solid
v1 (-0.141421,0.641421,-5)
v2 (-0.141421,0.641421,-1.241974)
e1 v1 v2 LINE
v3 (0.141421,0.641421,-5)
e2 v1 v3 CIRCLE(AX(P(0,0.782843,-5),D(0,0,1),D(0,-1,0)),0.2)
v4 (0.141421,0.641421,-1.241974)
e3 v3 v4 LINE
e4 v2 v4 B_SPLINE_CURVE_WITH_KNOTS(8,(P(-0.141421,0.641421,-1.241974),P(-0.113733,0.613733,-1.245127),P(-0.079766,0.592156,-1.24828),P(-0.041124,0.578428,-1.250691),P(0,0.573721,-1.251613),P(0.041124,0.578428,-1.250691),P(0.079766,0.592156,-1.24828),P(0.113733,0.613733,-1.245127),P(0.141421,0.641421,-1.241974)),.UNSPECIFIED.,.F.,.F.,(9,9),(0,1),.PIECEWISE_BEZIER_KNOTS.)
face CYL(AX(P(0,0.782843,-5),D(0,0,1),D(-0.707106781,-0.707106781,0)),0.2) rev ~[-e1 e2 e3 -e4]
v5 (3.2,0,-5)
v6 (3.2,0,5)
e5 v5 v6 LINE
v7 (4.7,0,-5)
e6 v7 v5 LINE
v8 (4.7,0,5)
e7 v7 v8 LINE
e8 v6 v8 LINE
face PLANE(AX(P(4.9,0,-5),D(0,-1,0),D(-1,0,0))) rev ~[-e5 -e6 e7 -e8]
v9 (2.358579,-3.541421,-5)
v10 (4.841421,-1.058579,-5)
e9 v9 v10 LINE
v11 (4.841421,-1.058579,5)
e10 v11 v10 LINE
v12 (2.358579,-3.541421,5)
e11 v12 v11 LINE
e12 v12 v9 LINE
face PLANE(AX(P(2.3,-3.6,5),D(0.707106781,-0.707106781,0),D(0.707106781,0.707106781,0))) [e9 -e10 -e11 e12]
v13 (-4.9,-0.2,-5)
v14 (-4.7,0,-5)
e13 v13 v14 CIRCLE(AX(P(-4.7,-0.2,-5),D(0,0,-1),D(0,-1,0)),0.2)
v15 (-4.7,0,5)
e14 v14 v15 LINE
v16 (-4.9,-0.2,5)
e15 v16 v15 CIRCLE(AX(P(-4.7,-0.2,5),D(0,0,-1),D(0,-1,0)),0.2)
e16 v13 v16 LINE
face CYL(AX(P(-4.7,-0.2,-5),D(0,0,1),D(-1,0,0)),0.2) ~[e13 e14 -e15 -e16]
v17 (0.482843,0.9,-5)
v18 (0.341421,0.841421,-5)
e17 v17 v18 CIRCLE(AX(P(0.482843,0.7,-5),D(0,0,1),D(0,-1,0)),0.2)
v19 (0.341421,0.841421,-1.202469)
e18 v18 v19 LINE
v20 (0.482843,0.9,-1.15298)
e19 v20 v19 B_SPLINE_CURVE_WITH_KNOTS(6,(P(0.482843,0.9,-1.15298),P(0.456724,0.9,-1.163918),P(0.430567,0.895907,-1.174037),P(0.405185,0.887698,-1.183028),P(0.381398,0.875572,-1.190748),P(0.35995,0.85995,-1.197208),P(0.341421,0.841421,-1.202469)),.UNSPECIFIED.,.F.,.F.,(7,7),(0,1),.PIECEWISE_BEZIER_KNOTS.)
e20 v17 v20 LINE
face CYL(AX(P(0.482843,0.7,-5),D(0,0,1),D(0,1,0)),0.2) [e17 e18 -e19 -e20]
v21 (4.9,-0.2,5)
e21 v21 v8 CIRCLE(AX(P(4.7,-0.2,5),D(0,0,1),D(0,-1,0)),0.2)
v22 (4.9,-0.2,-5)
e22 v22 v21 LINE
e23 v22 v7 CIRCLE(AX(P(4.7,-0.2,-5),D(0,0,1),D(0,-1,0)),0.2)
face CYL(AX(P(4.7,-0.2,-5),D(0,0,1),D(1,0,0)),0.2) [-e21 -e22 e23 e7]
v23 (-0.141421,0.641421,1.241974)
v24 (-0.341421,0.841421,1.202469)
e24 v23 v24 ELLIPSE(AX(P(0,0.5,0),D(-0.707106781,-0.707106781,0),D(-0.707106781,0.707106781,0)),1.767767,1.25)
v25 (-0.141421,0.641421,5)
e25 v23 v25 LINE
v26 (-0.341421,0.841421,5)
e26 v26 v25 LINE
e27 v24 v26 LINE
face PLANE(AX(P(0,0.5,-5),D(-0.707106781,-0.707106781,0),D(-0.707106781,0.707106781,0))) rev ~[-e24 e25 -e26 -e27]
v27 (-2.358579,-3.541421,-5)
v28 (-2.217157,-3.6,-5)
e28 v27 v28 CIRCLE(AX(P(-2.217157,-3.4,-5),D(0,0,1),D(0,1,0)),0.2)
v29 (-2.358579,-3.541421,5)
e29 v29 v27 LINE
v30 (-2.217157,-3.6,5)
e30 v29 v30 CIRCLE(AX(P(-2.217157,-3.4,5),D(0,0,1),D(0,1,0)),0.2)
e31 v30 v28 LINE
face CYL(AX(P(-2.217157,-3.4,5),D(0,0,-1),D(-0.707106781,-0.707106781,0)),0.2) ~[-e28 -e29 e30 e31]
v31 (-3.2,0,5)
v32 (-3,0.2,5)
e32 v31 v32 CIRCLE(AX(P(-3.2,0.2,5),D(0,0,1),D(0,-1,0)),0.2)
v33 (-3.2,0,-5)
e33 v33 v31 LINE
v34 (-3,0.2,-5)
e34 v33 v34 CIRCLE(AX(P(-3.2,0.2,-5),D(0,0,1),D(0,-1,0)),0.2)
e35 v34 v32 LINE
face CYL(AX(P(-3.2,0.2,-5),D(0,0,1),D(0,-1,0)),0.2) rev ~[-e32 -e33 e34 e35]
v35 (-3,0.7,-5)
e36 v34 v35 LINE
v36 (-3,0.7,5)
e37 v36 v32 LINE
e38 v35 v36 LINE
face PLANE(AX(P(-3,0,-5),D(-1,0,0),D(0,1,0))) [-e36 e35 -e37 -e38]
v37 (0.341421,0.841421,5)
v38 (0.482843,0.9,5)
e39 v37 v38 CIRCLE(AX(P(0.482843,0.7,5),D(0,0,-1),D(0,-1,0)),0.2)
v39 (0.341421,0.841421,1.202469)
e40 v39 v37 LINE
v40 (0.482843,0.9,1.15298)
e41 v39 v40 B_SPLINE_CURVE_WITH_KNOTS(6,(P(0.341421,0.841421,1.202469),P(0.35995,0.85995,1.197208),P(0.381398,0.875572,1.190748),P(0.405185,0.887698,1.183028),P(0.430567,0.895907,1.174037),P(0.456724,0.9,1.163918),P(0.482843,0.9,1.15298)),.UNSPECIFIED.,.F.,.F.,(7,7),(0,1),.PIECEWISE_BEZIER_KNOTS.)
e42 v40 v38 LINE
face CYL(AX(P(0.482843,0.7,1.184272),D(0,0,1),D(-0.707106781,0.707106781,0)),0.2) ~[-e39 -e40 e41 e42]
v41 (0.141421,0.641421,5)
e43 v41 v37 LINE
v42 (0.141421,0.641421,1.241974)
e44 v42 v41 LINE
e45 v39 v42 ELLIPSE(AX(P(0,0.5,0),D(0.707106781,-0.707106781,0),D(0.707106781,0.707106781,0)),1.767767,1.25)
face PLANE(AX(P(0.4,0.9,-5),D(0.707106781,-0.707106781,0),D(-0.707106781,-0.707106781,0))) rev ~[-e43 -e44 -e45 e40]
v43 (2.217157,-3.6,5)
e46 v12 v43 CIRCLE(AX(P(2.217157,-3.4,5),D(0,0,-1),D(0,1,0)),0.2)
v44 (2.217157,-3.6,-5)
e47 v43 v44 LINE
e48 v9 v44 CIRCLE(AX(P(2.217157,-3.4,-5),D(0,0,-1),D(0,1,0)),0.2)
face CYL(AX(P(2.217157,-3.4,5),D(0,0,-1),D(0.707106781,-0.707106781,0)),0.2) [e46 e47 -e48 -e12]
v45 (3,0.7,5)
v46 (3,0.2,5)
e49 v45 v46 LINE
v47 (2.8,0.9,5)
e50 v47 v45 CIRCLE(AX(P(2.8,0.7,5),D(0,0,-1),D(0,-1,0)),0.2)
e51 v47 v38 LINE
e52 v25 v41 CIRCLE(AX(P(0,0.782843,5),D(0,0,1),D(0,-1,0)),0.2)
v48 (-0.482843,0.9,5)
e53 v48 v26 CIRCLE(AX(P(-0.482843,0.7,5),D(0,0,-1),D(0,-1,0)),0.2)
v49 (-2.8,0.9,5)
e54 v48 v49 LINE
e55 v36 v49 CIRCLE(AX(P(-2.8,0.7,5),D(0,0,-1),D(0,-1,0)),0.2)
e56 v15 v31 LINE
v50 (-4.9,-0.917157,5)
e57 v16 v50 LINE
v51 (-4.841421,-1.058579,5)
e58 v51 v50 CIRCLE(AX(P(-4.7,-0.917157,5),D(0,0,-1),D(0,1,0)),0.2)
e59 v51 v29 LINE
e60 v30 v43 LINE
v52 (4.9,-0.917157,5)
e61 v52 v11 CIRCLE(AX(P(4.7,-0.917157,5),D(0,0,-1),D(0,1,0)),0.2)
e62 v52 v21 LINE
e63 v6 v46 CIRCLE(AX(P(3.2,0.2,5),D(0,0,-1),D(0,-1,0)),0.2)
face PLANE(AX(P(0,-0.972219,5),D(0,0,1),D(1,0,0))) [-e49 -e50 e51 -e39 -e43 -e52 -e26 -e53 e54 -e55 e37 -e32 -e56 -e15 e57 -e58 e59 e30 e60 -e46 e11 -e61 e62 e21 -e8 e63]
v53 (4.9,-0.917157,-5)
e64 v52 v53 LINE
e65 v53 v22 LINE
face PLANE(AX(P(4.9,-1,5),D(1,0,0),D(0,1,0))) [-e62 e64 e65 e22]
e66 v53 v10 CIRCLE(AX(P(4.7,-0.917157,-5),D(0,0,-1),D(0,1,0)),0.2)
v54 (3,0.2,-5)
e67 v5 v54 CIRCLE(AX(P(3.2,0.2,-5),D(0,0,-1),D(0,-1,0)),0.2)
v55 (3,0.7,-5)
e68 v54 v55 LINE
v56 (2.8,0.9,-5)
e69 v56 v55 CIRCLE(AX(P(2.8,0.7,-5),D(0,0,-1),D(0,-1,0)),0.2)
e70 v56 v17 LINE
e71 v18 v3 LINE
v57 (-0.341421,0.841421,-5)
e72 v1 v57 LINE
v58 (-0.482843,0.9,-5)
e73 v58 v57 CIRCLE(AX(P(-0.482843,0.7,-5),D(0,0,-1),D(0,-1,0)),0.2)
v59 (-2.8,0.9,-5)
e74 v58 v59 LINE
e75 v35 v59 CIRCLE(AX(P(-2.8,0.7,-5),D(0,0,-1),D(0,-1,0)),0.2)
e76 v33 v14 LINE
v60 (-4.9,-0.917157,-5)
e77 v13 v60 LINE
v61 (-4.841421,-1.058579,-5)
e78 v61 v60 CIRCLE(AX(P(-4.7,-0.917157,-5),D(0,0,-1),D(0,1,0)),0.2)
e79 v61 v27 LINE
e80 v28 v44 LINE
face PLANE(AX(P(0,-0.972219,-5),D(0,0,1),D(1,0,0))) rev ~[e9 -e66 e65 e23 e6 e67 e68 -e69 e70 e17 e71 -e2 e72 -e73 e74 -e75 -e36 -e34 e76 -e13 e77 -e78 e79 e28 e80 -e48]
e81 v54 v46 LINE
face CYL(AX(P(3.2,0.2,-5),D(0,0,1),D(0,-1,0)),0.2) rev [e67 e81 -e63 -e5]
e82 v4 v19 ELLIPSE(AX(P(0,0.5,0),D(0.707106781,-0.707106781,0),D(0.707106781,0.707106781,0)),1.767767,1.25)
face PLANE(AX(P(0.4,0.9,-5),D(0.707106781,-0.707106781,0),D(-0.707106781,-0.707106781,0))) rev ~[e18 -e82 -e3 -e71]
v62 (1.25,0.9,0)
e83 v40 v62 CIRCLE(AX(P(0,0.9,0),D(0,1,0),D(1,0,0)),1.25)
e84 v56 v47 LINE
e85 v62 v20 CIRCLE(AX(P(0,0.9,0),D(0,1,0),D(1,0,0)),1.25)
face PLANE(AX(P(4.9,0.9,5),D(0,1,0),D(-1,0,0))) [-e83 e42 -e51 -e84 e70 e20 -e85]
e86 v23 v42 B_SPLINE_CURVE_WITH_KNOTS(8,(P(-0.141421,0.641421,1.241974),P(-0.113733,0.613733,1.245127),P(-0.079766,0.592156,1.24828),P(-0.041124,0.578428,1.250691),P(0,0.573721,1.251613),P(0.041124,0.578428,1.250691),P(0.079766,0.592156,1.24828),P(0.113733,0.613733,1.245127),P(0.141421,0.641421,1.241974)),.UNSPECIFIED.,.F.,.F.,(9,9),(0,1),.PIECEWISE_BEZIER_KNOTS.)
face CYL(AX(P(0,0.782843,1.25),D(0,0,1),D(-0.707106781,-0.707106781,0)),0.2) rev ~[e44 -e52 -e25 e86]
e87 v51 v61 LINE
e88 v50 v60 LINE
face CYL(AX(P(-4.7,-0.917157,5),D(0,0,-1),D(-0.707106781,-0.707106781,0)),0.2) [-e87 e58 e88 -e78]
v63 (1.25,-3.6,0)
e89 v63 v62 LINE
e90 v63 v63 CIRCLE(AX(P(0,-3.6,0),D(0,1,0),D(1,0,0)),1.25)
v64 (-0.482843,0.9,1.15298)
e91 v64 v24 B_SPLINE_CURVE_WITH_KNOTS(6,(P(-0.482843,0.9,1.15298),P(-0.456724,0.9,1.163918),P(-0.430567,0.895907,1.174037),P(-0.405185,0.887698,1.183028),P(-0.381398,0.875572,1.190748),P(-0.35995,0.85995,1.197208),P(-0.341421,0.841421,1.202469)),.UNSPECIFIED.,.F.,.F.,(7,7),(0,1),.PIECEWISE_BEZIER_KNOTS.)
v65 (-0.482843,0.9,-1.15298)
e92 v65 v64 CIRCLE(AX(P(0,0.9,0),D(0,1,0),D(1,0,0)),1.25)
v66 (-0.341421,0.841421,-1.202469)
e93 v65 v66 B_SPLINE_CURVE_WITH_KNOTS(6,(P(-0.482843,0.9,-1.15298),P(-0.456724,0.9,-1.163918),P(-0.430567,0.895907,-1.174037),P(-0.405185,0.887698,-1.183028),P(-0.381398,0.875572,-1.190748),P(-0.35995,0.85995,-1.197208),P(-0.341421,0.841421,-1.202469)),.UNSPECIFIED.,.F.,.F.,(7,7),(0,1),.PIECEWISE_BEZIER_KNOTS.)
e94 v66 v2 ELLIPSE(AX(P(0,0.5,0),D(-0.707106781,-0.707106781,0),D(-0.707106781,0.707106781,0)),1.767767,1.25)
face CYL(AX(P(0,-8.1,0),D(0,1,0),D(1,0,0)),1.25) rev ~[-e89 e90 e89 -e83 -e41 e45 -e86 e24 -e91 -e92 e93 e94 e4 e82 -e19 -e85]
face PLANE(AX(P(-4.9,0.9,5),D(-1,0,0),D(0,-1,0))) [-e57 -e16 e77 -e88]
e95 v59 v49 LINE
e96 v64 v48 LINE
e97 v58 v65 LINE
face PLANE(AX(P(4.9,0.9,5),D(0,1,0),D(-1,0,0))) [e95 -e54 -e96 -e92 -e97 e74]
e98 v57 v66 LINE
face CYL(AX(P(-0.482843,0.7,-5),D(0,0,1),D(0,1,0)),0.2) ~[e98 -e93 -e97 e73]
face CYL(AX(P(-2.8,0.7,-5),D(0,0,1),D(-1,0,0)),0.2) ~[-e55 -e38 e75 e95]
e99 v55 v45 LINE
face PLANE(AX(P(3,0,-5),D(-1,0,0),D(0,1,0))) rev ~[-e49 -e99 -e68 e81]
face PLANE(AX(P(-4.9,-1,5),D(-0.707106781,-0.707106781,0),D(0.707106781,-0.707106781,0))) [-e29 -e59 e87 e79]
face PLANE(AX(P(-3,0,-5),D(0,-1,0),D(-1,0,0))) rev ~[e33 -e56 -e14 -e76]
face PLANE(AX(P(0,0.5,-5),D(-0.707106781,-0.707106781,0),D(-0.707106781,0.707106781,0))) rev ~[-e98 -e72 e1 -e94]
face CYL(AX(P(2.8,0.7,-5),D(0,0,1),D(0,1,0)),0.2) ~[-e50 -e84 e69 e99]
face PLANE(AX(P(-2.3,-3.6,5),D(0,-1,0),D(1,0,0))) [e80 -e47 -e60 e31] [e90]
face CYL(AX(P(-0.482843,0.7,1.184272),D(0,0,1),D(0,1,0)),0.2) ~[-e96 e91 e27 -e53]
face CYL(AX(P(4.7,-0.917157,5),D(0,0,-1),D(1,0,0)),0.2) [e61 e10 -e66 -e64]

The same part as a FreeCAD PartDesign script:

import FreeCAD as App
import Part
import Sketcher

V = App.Vector
Q = App.Units.Quantity


def edges_at(feature, points):
    """Names of the edges that pass closest to the given points."""
    edges = feature.Shape.Edges
    near = lambda p: min(range(len(edges)), key=lambda i: edges[i].distToShape(Part.Vertex(*p))[0])
    return sorted({f"Edge{near(p) + 1}" for p in points})


def add_polygon(sketch, points):
    """Adds a closed chain of lines whose ends are joined by coincident constraints."""
    first, n = sketch.GeometryCount, len(points)
    for a, b in zip(points, points[1:] + points[:1]):
        sketch.addGeometry(Part.LineSegment(App.Vector(*a, 0), App.Vector(*b, 0)), False)
    for i in range(n):
        sketch.addConstraint(Sketcher.Constraint("Coincident", first + i, 2, first + (i + 1) % n, 1))

doc = App.newDocument("Part")
body = doc.addObject("PartDesign::Body", "Body")

# Sketch on XY plane
sketch1 = doc.addObject("Sketcher::SketchObject", "Sketch")
body.addObject(sketch1)
sketch1.AttachmentSupport = (doc.XY_Plane, [""])
sketch1.MapMode = "FlatFace"
sketch1.AttachmentOffset = App.Placement(V(0, 0, 5), App.Rotation())
add_polygon(sketch1, [(4.9, -1), (4.9, 0.9), (-4.9, 0.9), (-4.9, -1), (-2.3, -3.6), (2.3, -3.6)])  # lines 0-5
sketch1.addConstraint([
    Sketcher.Constraint("Vertical", 0),
    Sketcher.Constraint("Horizontal", 1),
    Sketcher.Constraint("Vertical", 2),
    Sketcher.Constraint("Horizontal", 4),
    Sketcher.Constraint("Symmetric", 2, 2, 5, 2, -2),
    Sketcher.Constraint("Perpendicular", 3, 5),
    Sketcher.Constraint("Equal", 3, 5),
    Sketcher.Constraint("DistanceX", 1, 2, 1, 1, Q("9.8 mm")),
    Sketcher.Constraint("DistanceX", 4, 1, 4, 2, Q("4.6 mm")),
    Sketcher.Constraint("DistanceY", 0, 1, 0, 2, Q("1.9 mm")),
    Sketcher.Constraint("DistanceY", 2, 2, -1, 1, Q("1 mm")),
])
pad1 = doc.addObject("PartDesign::Pad", "Pad")
body.addObject(pad1)
pad1.Profile = sketch1
pad1.Length = 10
pad1.Reversed = True

# Sketch on XY plane
sketch2 = doc.addObject("Sketcher::SketchObject", "Sketch001")
body.addObject(sketch2)
sketch2.AttachmentSupport = (doc.XY_Plane, [""])
sketch2.MapMode = "FlatFace"
sketch2.AttachmentOffset = App.Placement(V(0, 0, -5), App.Rotation())
add_polygon(sketch2, [(-3, 0.9), (-3, 0), (-4.9, 0), (-4.9, 0.9)])  # lines 0-3
sketch2.addConstraint([
    Sketcher.Constraint("Vertical", 0),
    Sketcher.Constraint("Horizontal", 1),
    Sketcher.Constraint("Vertical", 2),
    Sketcher.Constraint("Horizontal", 3),
    Sketcher.Constraint("PointOnObject", 0, 2, -1),
    Sketcher.Constraint("DistanceX", 1, 2, 1, 1, Q("1.9 mm")),
    Sketcher.Constraint("DistanceY", 0, 2, 0, 1, Q("0.9 mm")),
    Sketcher.Constraint("DistanceX", 0, 2, -1, 1, Q("3 mm")),
])
pocket1 = doc.addObject("PartDesign::Pocket", "Pocket")
body.addObject(pocket1)
pocket1.Profile = sketch2
pocket1.Type = "ThroughAll"
pocket1.Reversed = True

# Sketch on XY plane
sketch3 = doc.addObject("Sketcher::SketchObject", "Sketch002")
body.addObject(sketch3)
sketch3.AttachmentSupport = (doc.XY_Plane, [""])
sketch3.MapMode = "FlatFace"
sketch3.AttachmentOffset = App.Placement(V(0, 0, -5), App.Rotation())
add_polygon(sketch3, [(4.9, 0.9), (4.9, 0), (3, 0), (3, 0.9)])  # lines 0-3
sketch3.addConstraint([
    Sketcher.Constraint("Vertical", 0),
    Sketcher.Constraint("Horizontal", 1),
    Sketcher.Constraint("Vertical", 2),
    Sketcher.Constraint("Horizontal", 3),
    Sketcher.Constraint("PointOnObject", 0, 2, -1),
    Sketcher.Constraint("DistanceX", 1, 2, 1, 1, Q("1.9 mm")),
    Sketcher.Constraint("DistanceY", 0, 2, 0, 1, Q("0.9 mm")),
    Sketcher.Constraint("DistanceX", -1, 1, 1, 2, Q("3 mm")),
])
pocket2 = doc.addObject("PartDesign::Pocket", "Pocket001")
body.addObject(pocket2)
pocket2.Profile = sketch3
pocket2.Type = "ThroughAll"
pocket2.Reversed = True

# Sketch on XY plane
sketch4 = doc.addObject("Sketcher::SketchObject", "Sketch003")
body.addObject(sketch4)
sketch4.AttachmentSupport = (doc.XY_Plane, [""])
sketch4.MapMode = "FlatFace"
sketch4.AttachmentOffset = App.Placement(V(0, 0, -5), App.Rotation())
add_polygon(sketch4, [(-0.4, 0.9), (0.4, 0.9), (0, 0.5)])  # lines 0-2
sketch4.addConstraint([
    Sketcher.Constraint("Horizontal", 0),
    Sketcher.Constraint("PointOnObject", 1, 2, -2),
    Sketcher.Constraint("Perpendicular", 1, 2),
    Sketcher.Constraint("Equal", 1, 2),
    Sketcher.Constraint("DistanceX", 0, 1, 0, 2, Q("0.8 mm")),
    Sketcher.Constraint("DistanceY", -1, 1, 0, 2, Q("0.9 mm")),
])
pocket3 = doc.addObject("PartDesign::Pocket", "Pocket002")
body.addObject(pocket3)
pocket3.Profile = sketch4
pocket3.Type = "ThroughAll"
pocket3.Reversed = True

# Sketch on XZ plane
sketch5 = doc.addObject("Sketcher::SketchObject", "Sketch004")
body.addObject(sketch5)
sketch5.AttachmentSupport = (doc.XZ_Plane, [""])
sketch5.MapMode = "FlatFace"
sketch5.AttachmentOffset = App.Placement(V(0, 0, 3.6), App.Rotation())
sketch5.addGeometry(Part.Circle(V(0, 0, 0), V(0, 0, 1), 1.2), False)
sketch5.addConstraint([
    Sketcher.Constraint("Coincident", 0, 3, -1, 1),
    Sketcher.Constraint("Diameter", 0, Q("2.5 mm")),
])
doc.recompute()
hole = doc.addObject("PartDesign::Hole", "Hole")
body.addObject(hole)
hole.Profile = sketch5
hole.ThreadType = "None"
hole.Diameter = 2.5
hole.DepthType = "Dimension"
hole.Depth = 4.5
hole.DrillPoint = "Flat"
doc.recompute()

fillet = doc.addObject("PartDesign::Fillet", "Fillet")
body.addObject(fillet)
fillet.Base = (hole, edges_at(hole, [
    (4.9, 0, 0),
    (3, 0, 0),
    (-4.9, -1, 0),
    (3, 0.9, 0),
    (-3, 0, 0),
    (0.4, 0.9, -3.092),
    (0, 0.5, 3.125),
    (-0.4, 0.9, -3.092),
    (4.9, -1, 0),
    (-3, 0.9, 0),
    (0, 0.5, -3.125),
    (-0.4, 0.9, 3.092),
    (-4.9, 0, 0),
    (-2.3, -3.6, 0),
    (0.4, 0.9, 3.092),
    (2.3, -3.6, 0),
]))
fillet.Radius = 0.2

doc.recompute()
